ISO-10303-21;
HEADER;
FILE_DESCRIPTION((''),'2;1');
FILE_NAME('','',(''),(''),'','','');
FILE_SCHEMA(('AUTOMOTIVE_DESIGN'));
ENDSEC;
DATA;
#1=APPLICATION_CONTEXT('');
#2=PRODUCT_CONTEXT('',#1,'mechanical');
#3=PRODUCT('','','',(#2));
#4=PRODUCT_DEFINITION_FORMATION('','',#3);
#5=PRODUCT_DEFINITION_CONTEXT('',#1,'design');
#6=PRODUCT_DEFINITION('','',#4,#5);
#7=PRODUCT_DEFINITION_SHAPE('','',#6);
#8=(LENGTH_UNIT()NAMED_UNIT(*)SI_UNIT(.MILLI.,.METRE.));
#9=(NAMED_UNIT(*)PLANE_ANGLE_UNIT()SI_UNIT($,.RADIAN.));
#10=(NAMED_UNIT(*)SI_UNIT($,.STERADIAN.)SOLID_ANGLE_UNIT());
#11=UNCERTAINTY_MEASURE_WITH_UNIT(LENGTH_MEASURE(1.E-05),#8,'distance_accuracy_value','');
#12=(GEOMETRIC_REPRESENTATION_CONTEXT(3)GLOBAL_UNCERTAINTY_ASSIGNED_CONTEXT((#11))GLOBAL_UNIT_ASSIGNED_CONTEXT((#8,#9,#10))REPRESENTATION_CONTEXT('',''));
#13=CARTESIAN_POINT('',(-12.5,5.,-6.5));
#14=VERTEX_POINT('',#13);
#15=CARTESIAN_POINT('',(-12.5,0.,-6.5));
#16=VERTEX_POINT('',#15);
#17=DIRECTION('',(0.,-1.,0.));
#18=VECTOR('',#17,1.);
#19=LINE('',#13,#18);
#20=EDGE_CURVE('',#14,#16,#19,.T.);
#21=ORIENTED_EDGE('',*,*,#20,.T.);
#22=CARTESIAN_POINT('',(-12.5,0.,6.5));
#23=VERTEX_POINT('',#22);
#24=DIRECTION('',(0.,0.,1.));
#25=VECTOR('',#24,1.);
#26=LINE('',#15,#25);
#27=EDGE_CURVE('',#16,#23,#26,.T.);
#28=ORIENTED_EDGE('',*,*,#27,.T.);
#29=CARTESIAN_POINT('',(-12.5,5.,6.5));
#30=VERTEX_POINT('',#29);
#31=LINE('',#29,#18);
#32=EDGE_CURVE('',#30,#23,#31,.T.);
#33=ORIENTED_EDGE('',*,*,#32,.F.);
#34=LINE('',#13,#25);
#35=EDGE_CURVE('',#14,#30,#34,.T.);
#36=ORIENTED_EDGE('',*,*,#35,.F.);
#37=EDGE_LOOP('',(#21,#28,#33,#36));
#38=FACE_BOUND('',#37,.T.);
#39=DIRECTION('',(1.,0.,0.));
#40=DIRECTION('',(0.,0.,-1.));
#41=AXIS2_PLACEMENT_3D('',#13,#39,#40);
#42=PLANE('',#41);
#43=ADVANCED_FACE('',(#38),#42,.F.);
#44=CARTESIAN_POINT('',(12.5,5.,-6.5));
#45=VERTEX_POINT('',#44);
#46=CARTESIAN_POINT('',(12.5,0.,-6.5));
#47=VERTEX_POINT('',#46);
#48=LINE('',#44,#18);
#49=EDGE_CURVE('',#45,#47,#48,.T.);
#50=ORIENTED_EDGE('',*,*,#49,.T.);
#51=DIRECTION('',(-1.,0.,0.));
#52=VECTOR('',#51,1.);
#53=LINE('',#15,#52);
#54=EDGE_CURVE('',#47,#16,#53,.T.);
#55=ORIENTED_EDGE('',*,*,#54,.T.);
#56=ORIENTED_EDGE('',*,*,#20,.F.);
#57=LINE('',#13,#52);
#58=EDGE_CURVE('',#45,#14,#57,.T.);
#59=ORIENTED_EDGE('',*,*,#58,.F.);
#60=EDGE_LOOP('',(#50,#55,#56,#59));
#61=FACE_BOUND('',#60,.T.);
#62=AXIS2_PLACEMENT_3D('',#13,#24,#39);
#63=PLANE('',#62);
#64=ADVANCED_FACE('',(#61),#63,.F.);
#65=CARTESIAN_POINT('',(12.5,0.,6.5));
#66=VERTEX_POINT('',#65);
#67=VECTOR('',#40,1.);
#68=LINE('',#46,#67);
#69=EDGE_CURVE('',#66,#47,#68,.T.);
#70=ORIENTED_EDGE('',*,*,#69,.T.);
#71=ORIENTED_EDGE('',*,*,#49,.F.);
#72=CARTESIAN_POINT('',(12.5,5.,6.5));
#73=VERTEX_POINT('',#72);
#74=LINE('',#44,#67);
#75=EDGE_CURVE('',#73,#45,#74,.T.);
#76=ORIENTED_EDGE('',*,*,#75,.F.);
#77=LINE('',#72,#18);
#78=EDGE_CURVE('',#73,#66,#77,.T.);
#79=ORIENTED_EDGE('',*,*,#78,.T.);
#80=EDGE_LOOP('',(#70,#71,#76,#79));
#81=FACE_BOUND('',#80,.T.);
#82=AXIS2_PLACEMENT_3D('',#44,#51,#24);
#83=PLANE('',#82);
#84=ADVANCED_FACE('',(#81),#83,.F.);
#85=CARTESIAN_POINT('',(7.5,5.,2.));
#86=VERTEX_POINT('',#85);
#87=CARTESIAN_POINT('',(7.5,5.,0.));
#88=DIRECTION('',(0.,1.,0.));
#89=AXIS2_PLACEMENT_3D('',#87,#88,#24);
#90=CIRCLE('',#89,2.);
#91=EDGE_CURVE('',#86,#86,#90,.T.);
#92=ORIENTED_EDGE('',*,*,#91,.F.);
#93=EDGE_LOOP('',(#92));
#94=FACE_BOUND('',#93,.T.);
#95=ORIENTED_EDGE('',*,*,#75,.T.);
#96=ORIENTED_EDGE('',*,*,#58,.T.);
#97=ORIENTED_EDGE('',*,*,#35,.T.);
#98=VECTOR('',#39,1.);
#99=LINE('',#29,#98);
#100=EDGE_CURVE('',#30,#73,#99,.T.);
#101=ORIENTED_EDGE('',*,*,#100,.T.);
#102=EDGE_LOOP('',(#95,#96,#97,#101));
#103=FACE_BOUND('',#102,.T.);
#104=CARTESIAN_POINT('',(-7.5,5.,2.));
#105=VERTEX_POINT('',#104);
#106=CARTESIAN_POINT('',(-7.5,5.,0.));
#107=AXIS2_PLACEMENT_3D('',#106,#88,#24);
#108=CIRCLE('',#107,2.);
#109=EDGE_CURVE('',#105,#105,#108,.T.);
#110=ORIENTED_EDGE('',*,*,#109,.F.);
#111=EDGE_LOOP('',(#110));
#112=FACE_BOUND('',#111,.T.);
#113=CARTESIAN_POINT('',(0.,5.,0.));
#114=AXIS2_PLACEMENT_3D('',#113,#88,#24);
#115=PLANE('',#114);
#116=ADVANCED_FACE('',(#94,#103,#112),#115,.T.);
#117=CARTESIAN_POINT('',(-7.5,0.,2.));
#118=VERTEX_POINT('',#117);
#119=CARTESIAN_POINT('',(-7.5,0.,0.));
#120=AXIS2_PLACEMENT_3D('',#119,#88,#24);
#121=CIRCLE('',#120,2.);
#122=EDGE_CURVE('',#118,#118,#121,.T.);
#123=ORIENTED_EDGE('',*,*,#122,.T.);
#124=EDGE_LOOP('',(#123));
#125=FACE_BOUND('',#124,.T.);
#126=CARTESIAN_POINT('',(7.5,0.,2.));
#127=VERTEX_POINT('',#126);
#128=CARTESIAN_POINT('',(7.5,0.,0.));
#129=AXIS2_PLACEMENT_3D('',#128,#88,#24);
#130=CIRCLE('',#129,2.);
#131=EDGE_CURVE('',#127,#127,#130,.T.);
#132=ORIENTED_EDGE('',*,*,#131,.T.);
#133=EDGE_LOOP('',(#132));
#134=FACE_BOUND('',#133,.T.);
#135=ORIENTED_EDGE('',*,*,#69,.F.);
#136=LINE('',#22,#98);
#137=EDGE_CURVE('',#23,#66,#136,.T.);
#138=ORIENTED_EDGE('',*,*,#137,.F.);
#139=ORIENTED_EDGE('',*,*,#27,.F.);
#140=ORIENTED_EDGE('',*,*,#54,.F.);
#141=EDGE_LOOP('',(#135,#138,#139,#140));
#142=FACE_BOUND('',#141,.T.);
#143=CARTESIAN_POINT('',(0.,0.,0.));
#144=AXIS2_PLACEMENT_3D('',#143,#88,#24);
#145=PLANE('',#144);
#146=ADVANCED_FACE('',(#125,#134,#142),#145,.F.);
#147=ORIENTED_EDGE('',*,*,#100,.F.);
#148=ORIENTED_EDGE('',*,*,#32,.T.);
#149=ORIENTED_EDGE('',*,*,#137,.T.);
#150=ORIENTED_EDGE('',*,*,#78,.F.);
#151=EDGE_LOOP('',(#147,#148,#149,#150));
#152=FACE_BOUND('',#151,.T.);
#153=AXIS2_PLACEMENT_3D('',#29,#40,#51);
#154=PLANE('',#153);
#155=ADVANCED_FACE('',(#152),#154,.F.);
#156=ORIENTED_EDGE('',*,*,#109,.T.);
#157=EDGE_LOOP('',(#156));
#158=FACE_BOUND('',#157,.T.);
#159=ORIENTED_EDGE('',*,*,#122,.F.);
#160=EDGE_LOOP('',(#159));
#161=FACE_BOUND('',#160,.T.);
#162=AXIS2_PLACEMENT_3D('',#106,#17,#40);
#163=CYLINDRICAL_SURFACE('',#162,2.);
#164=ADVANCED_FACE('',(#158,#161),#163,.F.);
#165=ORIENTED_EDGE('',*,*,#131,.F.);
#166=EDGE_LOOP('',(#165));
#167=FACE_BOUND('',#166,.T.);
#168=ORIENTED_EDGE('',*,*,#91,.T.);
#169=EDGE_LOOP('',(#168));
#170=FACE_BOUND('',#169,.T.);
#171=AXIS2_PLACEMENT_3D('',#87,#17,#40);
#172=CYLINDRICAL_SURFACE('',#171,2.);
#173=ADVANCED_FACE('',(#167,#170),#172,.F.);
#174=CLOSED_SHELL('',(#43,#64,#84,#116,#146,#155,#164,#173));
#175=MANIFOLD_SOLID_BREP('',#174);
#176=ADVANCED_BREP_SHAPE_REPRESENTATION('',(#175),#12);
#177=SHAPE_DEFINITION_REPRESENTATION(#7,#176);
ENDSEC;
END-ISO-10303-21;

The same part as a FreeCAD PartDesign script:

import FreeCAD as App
import Part
import Sketcher

V = App.Vector

doc = App.newDocument("Part")
body = doc.addObject("PartDesign::Body", "Body")

# Sketch on XZ plane
sketch1 = doc.addObject("Sketcher::SketchObject", "Sketch")
body.addObject(sketch1)
sketch1.AttachmentSupport = (doc.XZ_Plane, [""])
sketch1.MapMode = "FlatFace"
sketch1.addGeometry([
    Part.LineSegment(V(-12.5, -6.5, 0), V(-12.5, 6.5, 0)),  # 0
    Part.LineSegment(V(-12.5, 6.5, 0), V(12.5, 6.5, 0)),  # 1
    Part.LineSegment(V(12.5, 6.5, 0), V(12.5, -6.5, 0)),  # 2
    Part.LineSegment(V(12.5, -6.5, 0), V(-12.5, -6.5, 0)),  # 3
    Part.Circle(V(-7.5, 0, 0), V(0, 0, 1), 2),  # 4
    Part.Circle(V(7.5, 0, 0), V(0, 0, 1), 2),  # 5
], False)
sketch1.addConstraint([
    Sketcher.Constraint("Coincident", 0, 2, 1, 1),
    Sketcher.Constraint("Coincident", 1, 2, 2, 1),
    Sketcher.Constraint("Coincident", 2, 2, 3, 1),
    Sketcher.Constraint("Coincident", 3, 2, 0, 1),
    Sketcher.Constraint("Vertical", 0),
    Sketcher.Constraint("Horizontal", 1),
    Sketcher.Constraint("Vertical", 2),
    Sketcher.Constraint("Horizontal", 3),
    Sketcher.Constraint("Equal", 4, 5),
    Sketcher.Constraint("Symmetric", 4, 3, 5, 3, -1, 1),
    Sketcher.Constraint("Symmetric", 0, 2, 2, 2, -1, 1),
    Sketcher.Constraint("PointOnObject", 4, 3, -1),
    Sketcher.Constraint("Diameter", 4, 4.0),
    Sketcher.Constraint("DistanceX", 1, 1, 1, 2, 25.0),
    Sketcher.Constraint("DistanceY", 0, 1, 0, 2, 13.0),
    Sketcher.Constraint("DistanceX", 4, 3, 5, 3, 15.0),
])
pad1 = doc.addObject("PartDesign::Pad", "Pad")
body.addObject(pad1)
pad1.Profile = sketch1
pad1.Length = 5
pad1.Reversed = True

doc.recompute()
